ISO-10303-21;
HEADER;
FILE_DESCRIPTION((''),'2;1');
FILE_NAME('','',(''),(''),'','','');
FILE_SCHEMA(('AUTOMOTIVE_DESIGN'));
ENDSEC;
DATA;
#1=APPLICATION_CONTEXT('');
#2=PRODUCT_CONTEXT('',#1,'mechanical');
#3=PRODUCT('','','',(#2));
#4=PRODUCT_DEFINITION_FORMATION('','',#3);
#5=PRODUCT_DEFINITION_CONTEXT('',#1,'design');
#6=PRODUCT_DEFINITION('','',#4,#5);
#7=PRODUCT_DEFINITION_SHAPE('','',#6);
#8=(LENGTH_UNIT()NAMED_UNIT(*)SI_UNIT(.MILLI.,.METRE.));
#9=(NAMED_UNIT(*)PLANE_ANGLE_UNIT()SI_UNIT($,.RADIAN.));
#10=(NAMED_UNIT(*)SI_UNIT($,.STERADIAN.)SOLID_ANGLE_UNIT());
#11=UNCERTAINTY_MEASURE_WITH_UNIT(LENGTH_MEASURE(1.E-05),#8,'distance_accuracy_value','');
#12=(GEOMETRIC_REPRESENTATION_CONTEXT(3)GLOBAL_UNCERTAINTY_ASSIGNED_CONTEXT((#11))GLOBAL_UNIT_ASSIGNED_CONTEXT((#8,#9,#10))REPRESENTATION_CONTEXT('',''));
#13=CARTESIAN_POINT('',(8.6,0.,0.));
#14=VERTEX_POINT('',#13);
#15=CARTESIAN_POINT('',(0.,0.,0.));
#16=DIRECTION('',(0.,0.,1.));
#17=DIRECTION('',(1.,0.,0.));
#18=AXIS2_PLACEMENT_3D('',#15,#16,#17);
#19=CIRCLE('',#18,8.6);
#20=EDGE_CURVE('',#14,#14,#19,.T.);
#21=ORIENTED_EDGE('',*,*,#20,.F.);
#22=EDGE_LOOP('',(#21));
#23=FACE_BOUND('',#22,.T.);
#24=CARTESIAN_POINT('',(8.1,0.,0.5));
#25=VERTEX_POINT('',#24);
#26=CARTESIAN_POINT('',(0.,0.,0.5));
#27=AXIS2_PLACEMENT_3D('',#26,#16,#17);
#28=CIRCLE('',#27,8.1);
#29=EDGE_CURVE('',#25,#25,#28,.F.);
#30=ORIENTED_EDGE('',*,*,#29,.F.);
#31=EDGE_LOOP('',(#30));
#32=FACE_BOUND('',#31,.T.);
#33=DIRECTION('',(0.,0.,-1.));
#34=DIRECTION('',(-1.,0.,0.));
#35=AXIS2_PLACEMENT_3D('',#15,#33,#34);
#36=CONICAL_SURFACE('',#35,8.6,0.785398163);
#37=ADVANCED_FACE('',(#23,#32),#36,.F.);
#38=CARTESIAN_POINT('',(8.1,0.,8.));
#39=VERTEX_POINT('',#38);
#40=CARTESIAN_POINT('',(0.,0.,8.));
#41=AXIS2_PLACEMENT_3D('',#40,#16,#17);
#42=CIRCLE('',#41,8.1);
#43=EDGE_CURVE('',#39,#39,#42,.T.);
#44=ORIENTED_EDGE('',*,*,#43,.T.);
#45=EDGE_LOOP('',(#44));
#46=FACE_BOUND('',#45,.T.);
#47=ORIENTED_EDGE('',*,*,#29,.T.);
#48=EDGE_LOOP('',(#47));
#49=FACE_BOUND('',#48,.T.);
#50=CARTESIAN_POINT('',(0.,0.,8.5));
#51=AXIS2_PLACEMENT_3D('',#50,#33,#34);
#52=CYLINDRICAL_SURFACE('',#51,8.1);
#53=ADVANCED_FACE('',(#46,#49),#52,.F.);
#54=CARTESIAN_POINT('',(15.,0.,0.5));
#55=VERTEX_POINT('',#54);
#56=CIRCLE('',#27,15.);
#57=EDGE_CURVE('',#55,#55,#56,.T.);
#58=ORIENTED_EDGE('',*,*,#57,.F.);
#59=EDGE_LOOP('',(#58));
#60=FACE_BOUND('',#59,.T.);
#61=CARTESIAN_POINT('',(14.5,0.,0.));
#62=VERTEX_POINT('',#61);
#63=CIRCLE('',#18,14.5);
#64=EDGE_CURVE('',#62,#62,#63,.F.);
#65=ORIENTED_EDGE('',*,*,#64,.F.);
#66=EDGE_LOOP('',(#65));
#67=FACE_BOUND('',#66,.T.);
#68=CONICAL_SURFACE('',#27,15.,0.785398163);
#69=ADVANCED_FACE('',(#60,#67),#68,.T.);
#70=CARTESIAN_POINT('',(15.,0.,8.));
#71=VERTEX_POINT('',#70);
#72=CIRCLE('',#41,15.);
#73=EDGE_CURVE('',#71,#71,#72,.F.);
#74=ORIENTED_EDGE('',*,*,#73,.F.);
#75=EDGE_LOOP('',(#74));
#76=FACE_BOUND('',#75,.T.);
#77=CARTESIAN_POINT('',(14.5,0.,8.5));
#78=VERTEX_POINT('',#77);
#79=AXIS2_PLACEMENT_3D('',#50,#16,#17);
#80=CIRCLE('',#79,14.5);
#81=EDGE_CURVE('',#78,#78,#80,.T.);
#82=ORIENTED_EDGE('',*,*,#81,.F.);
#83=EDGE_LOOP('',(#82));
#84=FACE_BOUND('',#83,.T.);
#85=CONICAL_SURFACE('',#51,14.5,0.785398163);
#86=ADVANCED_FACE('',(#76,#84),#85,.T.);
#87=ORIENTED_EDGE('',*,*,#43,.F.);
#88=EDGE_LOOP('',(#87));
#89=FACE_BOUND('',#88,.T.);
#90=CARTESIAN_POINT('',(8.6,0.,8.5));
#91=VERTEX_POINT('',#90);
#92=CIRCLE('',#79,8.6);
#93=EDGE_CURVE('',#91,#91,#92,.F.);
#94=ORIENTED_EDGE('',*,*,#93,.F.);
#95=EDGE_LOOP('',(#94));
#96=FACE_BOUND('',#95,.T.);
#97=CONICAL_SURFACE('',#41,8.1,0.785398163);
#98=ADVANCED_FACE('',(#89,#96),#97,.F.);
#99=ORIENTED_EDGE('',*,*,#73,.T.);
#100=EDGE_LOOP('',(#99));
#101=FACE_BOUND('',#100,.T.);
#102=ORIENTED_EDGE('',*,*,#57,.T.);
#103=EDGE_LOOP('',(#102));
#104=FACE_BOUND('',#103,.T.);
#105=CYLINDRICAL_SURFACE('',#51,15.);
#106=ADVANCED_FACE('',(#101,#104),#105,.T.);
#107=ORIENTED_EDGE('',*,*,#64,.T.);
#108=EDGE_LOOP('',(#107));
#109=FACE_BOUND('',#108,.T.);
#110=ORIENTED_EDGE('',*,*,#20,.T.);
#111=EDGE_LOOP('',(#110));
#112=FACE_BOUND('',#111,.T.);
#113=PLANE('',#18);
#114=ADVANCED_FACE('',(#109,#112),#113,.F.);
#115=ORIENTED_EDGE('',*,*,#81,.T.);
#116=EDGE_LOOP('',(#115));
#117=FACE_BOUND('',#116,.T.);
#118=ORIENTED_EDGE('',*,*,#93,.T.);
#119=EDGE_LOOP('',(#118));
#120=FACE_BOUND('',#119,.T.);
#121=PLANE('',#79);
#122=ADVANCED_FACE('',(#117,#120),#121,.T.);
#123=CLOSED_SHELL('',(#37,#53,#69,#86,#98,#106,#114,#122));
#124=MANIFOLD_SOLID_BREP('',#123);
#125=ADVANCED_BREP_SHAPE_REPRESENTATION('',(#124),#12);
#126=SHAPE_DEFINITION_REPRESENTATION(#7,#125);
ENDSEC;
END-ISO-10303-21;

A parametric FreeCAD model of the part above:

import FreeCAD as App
import Part
import Sketcher

V = App.Vector


def edges_at(feature, points):
    """Names of the edges that pass closest to the given points."""
    edges = feature.Shape.Edges
    near = lambda p: min(range(len(edges)), key=lambda i: edges[i].distToShape(Part.Vertex(*p))[0])
    return sorted({f"Edge{near(p) + 1}" for p in points})

doc = App.newDocument("Part")
body = doc.addObject("PartDesign::Body", "Body")

sketch1 = body.newObject("Sketcher::SketchObject", "Sketch")
sketch1.AttachmentSupport = (doc.getObject("XY_Plane"), [""])
sketch1.MapMode = "FlatFace"
sketch1.addGeometry([
    Part.Circle(V(0, 0, 0), V(0, 0, 1), 15),
    Part.Circle(V(0, 0, 0), V(0, 0, 1), 8),
], False)
sketch1.addConstraint([
    Sketcher.Constraint("Coincident", 0, 3, -1, 1),
    Sketcher.Constraint("Coincident", 1, 3, -1, 1),
    Sketcher.Constraint("Diameter", 0, 30.0),
    Sketcher.Constraint("Diameter", 1, 16.2),
])
pad1 = body.newObject("PartDesign::Pad", "Pad")
pad1.Profile = sketch1
pad1.Length = 8.5
doc.recompute()

chamfer = body.newObject("PartDesign::Chamfer", "Chamfer")
chamfer.Base = (pad1, edges_at(pad1, [
    (-15, 0, 0),
    (-15, 0, 8.5),
    (-8.1, 0, 0),
    (-8.1, 0, 8.5),
]))
chamfer.Size = 0.5

doc.recompute()
